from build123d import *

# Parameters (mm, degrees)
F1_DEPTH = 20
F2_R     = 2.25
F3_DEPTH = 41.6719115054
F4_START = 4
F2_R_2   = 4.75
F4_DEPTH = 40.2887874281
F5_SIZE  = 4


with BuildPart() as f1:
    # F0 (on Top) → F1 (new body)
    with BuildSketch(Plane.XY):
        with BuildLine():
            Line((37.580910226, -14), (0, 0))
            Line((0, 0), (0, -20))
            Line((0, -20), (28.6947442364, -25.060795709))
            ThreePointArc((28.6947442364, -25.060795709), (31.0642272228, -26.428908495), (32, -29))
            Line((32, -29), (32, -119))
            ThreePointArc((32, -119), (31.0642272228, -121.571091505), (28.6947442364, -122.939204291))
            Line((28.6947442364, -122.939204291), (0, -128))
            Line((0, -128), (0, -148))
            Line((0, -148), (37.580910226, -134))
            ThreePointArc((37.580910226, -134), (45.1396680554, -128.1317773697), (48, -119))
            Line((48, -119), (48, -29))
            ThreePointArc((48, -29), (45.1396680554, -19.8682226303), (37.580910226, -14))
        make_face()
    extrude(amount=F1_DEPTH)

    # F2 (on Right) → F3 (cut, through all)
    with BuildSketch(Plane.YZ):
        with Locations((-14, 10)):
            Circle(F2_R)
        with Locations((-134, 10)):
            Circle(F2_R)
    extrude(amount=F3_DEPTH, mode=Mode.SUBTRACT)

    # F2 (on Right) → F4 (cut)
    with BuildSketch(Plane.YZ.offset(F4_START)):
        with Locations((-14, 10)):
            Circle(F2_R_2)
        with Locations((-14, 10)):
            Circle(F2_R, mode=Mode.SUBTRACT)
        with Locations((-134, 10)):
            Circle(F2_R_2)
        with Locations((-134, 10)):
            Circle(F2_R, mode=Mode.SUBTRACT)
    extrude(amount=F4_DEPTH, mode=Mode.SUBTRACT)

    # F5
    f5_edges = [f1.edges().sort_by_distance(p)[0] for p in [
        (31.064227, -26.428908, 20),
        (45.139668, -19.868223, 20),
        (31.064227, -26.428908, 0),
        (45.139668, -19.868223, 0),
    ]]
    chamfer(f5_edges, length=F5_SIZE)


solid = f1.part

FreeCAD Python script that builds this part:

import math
import FreeCAD as App
import Part
import Sketcher
Q = App.Units.Quantity


def edges_at(feature, points):
    """Names of the edges that pass closest to the given points."""
    edges = feature.Shape.Edges
    near = lambda p: min(range(len(edges)), key=lambda i: edges[i].distToShape(Part.Vertex(*p))[0])
    return sorted({f"Edge{near(p) + 1}" for p in points})

doc = App.newDocument("Part")
body = doc.addObject("PartDesign::Body", "Body")

# Sketch on XY plane
sketch1 = body.newObject("Sketcher::SketchObject", "Sketch")
sketch1.AttachmentSupport = (doc.getObject("XY_Plane"), [""])
sketch1.MapMode = "FlatFace"
sketch1.addGeometry([
    Part.LineSegment(App.Vector(37.6, -14, 0), App.Vector(0, 0, 0)),  # 0
    Part.LineSegment(App.Vector(0, 0, 0), App.Vector(0, -20, 0)),  # 1
    Part.LineSegment(App.Vector(0, -20, 0), App.Vector(28.7, -25.1, 0)),  # 2
    Part.ArcOfCircle(Part.Circle(App.Vector(28, -29, 0), App.Vector(0, 0, 1), 4), math.radians(0), math.radians(80)),  # 3
    Part.LineSegment(App.Vector(32, -29, 0), App.Vector(32, -119, 0)),  # 4
    Part.ArcOfCircle(Part.Circle(App.Vector(28, -119, 0), App.Vector(0, 0, 1), 4), math.radians(-80), math.radians(0)),  # 5
    Part.LineSegment(App.Vector(28.7, -122.9, 0), App.Vector(0, -128, 0)),  # 6
    Part.LineSegment(App.Vector(0, -128, 0), App.Vector(0, -148, 0)),  # 7
    Part.LineSegment(App.Vector(0, -148, 0), App.Vector(37.6, -134, 0)),  # 8
    Part.ArcOfCircle(Part.Circle(App.Vector(32, -119, 0), App.Vector(0, 0, 1), 16), math.radians(-70), math.radians(0)),  # 9
    Part.LineSegment(App.Vector(48, -119, 0), App.Vector(48, -29, 0)),  # 10
    Part.ArcOfCircle(Part.Circle(App.Vector(32, -29, 0), App.Vector(0, 0, 1), 16), math.radians(0), math.radians(70)),  # 11
], False)
sketch1.addConstraint([
    Sketcher.Constraint("Coincident", 0, 2, 1, 1),
    Sketcher.Constraint("Coincident", 1, 2, 2, 1),
    Sketcher.Constraint("Tangent", 2, 2, 3, 2),
    Sketcher.Constraint("Tangent", 3, 1, 4, 1),
    Sketcher.Constraint("Tangent", 4, 2, 5, 2),
    Sketcher.Constraint("Tangent", 5, 1, 6, 1),
    Sketcher.Constraint("Coincident", 6, 2, 7, 1),
    Sketcher.Constraint("Coincident", 7, 2, 8, 1),
    Sketcher.Constraint("Tangent", 8, 2, 9, 1),
    Sketcher.Constraint("Tangent", 9, 2, 10, 1),
    Sketcher.Constraint("Tangent", 10, 2, 11, 1),
    Sketcher.Constraint("Tangent", 11, 2, 0, 1),
    Sketcher.Constraint("Vertical", 1),
    Sketcher.Constraint("Vertical", 4),
    Sketcher.Constraint("Vertical", 7),
    Sketcher.Constraint("Vertical", 10),
    Sketcher.Constraint("Coincident", 0, 2, -1, 1),
    Sketcher.Constraint("Equal", 3, 5),
    Sketcher.Constraint("Equal", 9, 11),
    Sketcher.Constraint("PointOnObject", 6, 2, -2),
    Sketcher.Constraint("Horizontal", 5, 3, 9, 3),
    Sketcher.Constraint("Horizontal", 3, 3, 11, 3),
    Sketcher.Constraint("Vertical", 2, 2, 5, 1),
    Sketcher.Constraint("Vertical", 8, 2, 11, 2),
    Sketcher.Constraint("Radius", 3, Q("4 mm")),
    Sketcher.Constraint("DistanceY", 1, 2, 1, 1, Q("20 mm")),
    Sketcher.Constraint("DistanceY", 4, 2, 4, 1, Q("90 mm")),
    Sketcher.Constraint("DistanceX", -1, 1, 3, 3, Q("28 mm")),
    Sketcher.Constraint("DistanceY", 3, 3, -1, 1, Q("29 mm")),
    Sketcher.Constraint("DistanceY", 8, 2, -1, 1, Q("134 mm")),
    Sketcher.Constraint("DistanceX", -1, 1, 9, 2, Q("48 mm")),
])
pad1 = body.newObject("PartDesign::Pad", "Pad")
pad1.Profile = sketch1
pad1.Length = 20

# Sketch on YZ plane
sketch2 = body.newObject("Sketcher::SketchObject", "Sketch001")
sketch2.AttachmentSupport = (doc.getObject("YZ_Plane"), [""])
sketch2.MapMode = "FlatFace"
sketch2.addGeometry([
    Part.Circle(App.Vector(-14, 10, 0), App.Vector(0, 0, 1), 2.2),
    Part.Circle(App.Vector(-134, 10, 0), App.Vector(0, 0, 1), 2.2),
], False)
sketch2.addConstraint([
    Sketcher.Constraint("Equal", 0, 1),
    Sketcher.Constraint("Horizontal", 0, 3, 1, 3),
    Sketcher.Constraint("Diameter", 0, Q("4.5 mm")),
    Sketcher.Constraint("DistanceX", 0, 3, -1, 1, Q("14 mm")),
    Sketcher.Constraint("DistanceY", -1, 1, 0, 3, Q("10 mm")),
    Sketcher.Constraint("DistanceX", 1, 3, -1, 1, Q("134 mm")),
])
pocket1 = body.newObject("PartDesign::Pocket", "Pocket")
pocket1.Profile = sketch2
pocket1.Type = "ThroughAll"
pocket1.Reversed = True

# Sketch on YZ plane
sketch3 = body.newObject("Sketcher::SketchObject", "Sketch002")
sketch3.AttachmentSupport = (doc.getObject("YZ_Plane"), [""])
sketch3.MapMode = "FlatFace"
sketch3.AttachmentOffset = App.Placement(App.Vector(0, 0, 4), App.Rotation())
sketch3.addGeometry([
    Part.Circle(App.Vector(-14, 10, 0), App.Vector(0, 0, 1), 4.8),
    Part.Circle(App.Vector(-14, 10, 0), App.Vector(0, 0, 1), 2.2),
    Part.Circle(App.Vector(-134, 10, 0), App.Vector(0, 0, 1), 4.8),
    Part.Circle(App.Vector(-134, 10, 0), App.Vector(0, 0, 1), 2.2),
], False)
sketch3.addConstraint([
    Sketcher.Constraint("Coincident", 1, 3, 0, 3),
    Sketcher.Constraint("Coincident", 3, 3, 2, 3),
    Sketcher.Constraint("Equal", 0, 2),
    Sketcher.Constraint("Equal", 1, 3),
    Sketcher.Constraint("Horizontal", 1, 3, 2, 3),
    Sketcher.Constraint("Diameter", 0, Q("9.5 mm")),
    Sketcher.Constraint("Diameter", 1, Q("4.5 mm")),
    Sketcher.Constraint("DistanceX", 0, 3, -1, 1, Q("14 mm")),
    Sketcher.Constraint("DistanceY", -1, 1, 0, 3, Q("10 mm")),
    Sketcher.Constraint("DistanceX", 2, 3, -1, 1, Q("134 mm")),
])
pocket2 = body.newObject("PartDesign::Pocket", "Pocket001")
pocket2.Profile = sketch3
pocket2.Length = 40.288787
pocket2.Reversed = True
doc.recompute()

chamfer = body.newObject("PartDesign::Chamfer", "Chamfer")
chamfer.Base = (pocket2, edges_at(pocket2, [
    (31.064, -26.429, 20),
    (45.14, -19.868, 20),
    (31.064, -26.429, 0),
    (45.14, -19.868, 0),
]))
chamfer.Size = 4

doc.recompute()
